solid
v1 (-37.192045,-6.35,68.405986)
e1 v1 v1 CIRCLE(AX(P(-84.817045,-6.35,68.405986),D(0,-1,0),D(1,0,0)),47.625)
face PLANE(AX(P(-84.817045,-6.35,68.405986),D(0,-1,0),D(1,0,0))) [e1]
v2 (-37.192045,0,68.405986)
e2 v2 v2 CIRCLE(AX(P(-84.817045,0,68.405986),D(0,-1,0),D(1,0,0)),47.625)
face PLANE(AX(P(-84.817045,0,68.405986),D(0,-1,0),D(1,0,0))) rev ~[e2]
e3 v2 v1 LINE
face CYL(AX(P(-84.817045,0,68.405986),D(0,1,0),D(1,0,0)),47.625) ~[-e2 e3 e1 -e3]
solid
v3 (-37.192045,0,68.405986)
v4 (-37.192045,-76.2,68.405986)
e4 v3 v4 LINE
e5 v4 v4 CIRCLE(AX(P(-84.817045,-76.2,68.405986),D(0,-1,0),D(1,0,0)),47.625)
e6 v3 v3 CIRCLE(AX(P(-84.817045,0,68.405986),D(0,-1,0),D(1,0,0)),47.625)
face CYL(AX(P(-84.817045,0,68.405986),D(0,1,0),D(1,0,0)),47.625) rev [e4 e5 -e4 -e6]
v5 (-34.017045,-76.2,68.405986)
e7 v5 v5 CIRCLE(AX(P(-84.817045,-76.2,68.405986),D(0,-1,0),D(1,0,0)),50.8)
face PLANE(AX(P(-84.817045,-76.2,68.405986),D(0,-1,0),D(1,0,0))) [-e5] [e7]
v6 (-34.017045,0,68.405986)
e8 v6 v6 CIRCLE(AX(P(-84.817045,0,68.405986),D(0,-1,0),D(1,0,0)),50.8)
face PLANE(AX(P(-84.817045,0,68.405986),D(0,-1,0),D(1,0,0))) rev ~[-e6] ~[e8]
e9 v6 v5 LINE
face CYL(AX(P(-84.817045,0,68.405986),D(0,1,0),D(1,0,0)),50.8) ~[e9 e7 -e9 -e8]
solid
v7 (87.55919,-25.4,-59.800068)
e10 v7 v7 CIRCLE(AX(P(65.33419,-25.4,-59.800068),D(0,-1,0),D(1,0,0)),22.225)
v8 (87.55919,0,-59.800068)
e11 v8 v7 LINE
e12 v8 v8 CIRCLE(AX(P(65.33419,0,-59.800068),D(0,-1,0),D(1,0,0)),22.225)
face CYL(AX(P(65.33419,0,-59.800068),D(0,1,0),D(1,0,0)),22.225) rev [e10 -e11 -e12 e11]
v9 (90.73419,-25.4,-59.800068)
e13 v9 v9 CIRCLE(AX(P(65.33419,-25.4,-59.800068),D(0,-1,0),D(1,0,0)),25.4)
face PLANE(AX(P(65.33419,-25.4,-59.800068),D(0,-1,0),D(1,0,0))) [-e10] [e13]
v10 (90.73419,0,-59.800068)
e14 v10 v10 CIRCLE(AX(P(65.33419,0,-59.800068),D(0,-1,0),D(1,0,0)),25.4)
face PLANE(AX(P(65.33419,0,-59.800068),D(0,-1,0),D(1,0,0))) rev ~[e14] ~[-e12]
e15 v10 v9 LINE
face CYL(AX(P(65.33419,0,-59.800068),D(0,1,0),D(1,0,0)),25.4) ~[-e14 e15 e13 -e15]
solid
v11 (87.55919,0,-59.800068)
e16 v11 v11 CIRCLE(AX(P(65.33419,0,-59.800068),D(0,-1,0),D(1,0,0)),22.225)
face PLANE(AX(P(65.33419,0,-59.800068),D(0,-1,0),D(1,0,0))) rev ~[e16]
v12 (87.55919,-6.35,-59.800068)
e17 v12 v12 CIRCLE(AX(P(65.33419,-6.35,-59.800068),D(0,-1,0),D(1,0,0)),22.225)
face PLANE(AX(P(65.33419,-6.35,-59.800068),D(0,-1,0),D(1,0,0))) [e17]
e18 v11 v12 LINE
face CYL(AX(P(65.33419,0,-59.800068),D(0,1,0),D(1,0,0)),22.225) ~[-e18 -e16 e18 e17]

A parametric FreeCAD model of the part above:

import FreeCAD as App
import Part
import Sketcher
from FreeCAD import Vector
Q = App.Units.Quantity

doc = App.newDocument("Part")
body = doc.addObject("PartDesign::Body", "Body")

sketch1 = body.newObject("Sketcher::SketchObject", "Sketch")
sketch1.AttachmentSupport = (doc.getObject("XZ_Plane"), [""])
sketch1.MapMode = "FlatFace"
sketch1.addGeometry([
    Part.Circle(Vector(-85, 68, 0), Vector(0, 0, 1), 51),
    Part.Circle(Vector(-85, 68, 0), Vector(0, 0, 1), 48),
], False)
sketch1.addConstraint([
    Sketcher.Constraint("Coincident", 1, 3, 0, 3),
    Sketcher.Constraint("Diameter", 0, Q("4 in")),
    Sketcher.Constraint("Diameter", 1, Q("3.75 in")),
    Sketcher.Constraint("DistanceX", 0, 3, -1, 1, 84.817045),
    Sketcher.Constraint("DistanceY", -1, 1, 0, 3, 68.405986),
])
pad1 = body.newObject("PartDesign::Pad", "Pad")
pad1.Profile = sketch1
pad1.Length = Q("3 in")
body2 = doc.addObject("PartDesign::Body", "Body001")

sketch2 = body2.newObject("Sketcher::SketchObject", "Sketch001")
sketch2.AttachmentSupport = (doc.getObject("XZ_Plane001"), [""])
sketch2.MapMode = "FlatFace"
sketch2.addGeometry(Part.Circle(Vector(-85, 68, 0), Vector(0, 0, 1), 48), False)
sketch2.addConstraint([
    Sketcher.Constraint("Diameter", 0, Q("3.75 in")),
    Sketcher.Constraint("DistanceX", 0, 3, -1, 1, 84.817045),
    Sketcher.Constraint("DistanceY", -1, 1, 0, 3, 68.405986),
])
pad2 = body2.newObject("PartDesign::Pad", "Pad001")
pad2.Profile = sketch2
pad2.Length = Q("0.25 in")
body3 = doc.addObject("PartDesign::Body", "Body002")

sketch3 = body3.newObject("Sketcher::SketchObject", "Sketch002")
sketch3.AttachmentSupport = (doc.getObject("XZ_Plane002"), [""])
sketch3.MapMode = "FlatFace"
sketch3.addGeometry(Part.Circle(Vector(65, -60, 0), Vector(0, 0, 1), 22), False)
sketch3.addConstraint([
    Sketcher.Constraint("Diameter", 0, Q("1.75 in")),
    Sketcher.Constraint("DistanceX", -1, 1, 0, 3, 65.33419),
    Sketcher.Constraint("DistanceY", 0, 3, -1, 1, 59.800068),
])
pad3 = body3.newObject("PartDesign::Pad", "Pad002")
pad3.Profile = sketch3
pad3.Length = Q("0.25 in")
body4 = doc.addObject("PartDesign::Body", "Body003")

sketch4 = body4.newObject("Sketcher::SketchObject", "Sketch003")
sketch4.AttachmentSupport = (doc.getObject("XZ_Plane003"), [""])
sketch4.MapMode = "FlatFace"
sketch4.addGeometry([
    Part.Circle(Vector(65, -60, 0), Vector(0, 0, 1), 25),
    Part.Circle(Vector(65, -60, 0), Vector(0, 0, 1), 22),
], False)
sketch4.addConstraint([
    Sketcher.Constraint("Coincident", 1, 3, 0, 3),
    Sketcher.Constraint("Diameter", 0, Q("2 in")),
    Sketcher.Constraint("Diameter", 1, Q("1.75 in")),
    Sketcher.Constraint("DistanceX", -1, 1, 0, 3, 65.33419),
    Sketcher.Constraint("DistanceY", 0, 3, -1, 1, 59.800068),
])
pad4 = body4.newObject("PartDesign::Pad", "Pad003")
pad4.Profile = sketch4
pad4.Length = Q("1 in")

doc.recompute()
